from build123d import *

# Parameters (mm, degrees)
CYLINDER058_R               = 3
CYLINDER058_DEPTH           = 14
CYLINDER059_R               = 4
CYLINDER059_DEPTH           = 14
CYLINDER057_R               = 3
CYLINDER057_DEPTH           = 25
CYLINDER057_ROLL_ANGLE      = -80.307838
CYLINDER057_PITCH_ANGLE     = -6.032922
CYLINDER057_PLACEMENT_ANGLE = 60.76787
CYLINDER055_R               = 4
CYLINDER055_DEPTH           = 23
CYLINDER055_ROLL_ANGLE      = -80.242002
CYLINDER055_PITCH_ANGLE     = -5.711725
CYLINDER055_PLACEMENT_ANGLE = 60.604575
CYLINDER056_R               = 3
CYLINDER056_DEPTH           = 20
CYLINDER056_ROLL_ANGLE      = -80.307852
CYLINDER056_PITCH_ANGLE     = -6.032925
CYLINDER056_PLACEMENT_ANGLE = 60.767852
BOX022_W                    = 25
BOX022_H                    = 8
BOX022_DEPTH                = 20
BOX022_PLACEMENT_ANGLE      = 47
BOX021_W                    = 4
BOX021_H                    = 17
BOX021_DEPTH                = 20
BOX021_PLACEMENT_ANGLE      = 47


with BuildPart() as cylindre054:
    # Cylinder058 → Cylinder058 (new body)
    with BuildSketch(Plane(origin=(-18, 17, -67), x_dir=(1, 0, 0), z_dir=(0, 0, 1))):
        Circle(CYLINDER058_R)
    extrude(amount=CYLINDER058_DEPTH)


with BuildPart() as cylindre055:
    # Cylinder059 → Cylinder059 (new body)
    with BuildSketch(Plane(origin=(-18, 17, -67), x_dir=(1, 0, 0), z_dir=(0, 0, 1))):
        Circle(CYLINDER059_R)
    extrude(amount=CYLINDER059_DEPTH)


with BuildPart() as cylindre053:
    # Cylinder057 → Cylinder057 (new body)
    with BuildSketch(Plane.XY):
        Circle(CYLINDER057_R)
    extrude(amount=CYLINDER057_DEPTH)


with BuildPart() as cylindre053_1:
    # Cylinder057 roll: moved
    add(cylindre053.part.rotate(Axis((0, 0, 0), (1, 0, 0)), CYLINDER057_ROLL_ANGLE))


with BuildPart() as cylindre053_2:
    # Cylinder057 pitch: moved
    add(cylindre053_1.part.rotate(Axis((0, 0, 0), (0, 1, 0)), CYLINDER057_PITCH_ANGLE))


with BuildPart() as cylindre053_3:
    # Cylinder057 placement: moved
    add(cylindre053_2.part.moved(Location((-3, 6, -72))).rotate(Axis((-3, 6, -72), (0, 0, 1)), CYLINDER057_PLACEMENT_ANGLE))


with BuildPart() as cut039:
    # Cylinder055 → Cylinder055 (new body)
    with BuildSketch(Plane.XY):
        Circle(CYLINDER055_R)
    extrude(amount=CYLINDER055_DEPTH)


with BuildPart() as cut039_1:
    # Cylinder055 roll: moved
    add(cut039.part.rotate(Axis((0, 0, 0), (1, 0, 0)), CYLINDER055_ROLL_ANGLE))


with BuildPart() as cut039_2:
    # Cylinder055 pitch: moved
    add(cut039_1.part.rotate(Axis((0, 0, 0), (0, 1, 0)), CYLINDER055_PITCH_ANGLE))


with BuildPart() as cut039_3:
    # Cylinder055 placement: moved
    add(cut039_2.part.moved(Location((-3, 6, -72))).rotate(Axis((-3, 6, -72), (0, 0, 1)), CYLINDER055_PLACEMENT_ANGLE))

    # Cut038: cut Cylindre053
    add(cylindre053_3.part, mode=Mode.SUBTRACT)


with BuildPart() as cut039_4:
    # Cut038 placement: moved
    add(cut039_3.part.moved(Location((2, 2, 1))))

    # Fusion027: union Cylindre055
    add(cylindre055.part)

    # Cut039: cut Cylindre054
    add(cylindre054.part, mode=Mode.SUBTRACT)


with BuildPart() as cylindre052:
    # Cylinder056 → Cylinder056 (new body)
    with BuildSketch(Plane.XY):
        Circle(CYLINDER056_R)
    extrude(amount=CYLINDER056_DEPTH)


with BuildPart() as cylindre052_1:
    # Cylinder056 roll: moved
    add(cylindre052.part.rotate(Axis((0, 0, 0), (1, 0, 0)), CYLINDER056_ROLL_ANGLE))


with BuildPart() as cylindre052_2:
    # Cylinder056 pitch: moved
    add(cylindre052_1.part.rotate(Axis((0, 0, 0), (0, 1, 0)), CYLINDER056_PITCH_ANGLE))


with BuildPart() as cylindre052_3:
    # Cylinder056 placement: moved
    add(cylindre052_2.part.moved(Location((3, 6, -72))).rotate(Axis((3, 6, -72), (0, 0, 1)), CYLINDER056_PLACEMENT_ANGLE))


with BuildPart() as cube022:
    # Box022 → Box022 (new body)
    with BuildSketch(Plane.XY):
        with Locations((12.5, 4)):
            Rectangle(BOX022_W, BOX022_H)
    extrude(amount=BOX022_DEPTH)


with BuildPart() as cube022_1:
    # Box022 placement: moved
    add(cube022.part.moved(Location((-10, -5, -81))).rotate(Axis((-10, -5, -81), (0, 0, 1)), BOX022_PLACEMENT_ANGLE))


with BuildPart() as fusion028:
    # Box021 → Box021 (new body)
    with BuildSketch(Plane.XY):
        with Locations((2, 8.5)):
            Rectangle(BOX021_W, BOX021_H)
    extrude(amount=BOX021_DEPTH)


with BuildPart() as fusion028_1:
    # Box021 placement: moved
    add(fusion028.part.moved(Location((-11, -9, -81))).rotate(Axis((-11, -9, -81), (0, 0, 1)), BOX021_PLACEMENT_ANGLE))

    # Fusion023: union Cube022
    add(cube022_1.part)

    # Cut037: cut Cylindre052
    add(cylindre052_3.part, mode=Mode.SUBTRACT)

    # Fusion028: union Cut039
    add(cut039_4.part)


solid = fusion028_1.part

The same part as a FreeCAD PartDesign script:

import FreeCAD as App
import Part
import Sketcher

V = App.Vector

doc = App.newDocument("Part")
body = doc.addObject("PartDesign::Body", "Body")

sketch1 = body.newObject("Sketcher::SketchObject", "Sketch")
sketch1.AttachmentSupport = (doc.getObject("XY_Plane"), [""])
sketch1.MapMode = "FlatFace"
sketch1.AttachmentOffset = App.Placement(V(0, 0, -67), App.Rotation())
sketch1.addGeometry(Part.Circle(V(-18, 17, 0), V(0, 0, 1), 3), False)
sketch1.addConstraint([
    Sketcher.Constraint("Diameter", 0, 6.0),
    Sketcher.Constraint("DistanceX", 0, 3, -1, 1, 18.0),
    Sketcher.Constraint("DistanceY", -1, 1, 0, 3, 17.0),
])
pad1 = body.newObject("PartDesign::Pad", "Pad")
pad1.Profile = sketch1
pad1.Length = 14
body2 = doc.addObject("PartDesign::Body", "Body001")

sketch2 = body2.newObject("Sketcher::SketchObject", "Sketch001")
sketch2.AttachmentSupport = (doc.getObject("XY_Plane001"), [""])
sketch2.MapMode = "FlatFace"
sketch2.AttachmentOffset = App.Placement(V(0, 0, -67), App.Rotation())
sketch2.addGeometry(Part.Circle(V(-18, 17, 0), V(0, 0, 1), 4), False)
sketch2.addConstraint([
    Sketcher.Constraint("Diameter", 0, 8.0),
    Sketcher.Constraint("DistanceX", 0, 3, -1, 1, 18.0),
    Sketcher.Constraint("DistanceY", -1, 1, 0, 3, 17.0),
])
pad2 = body2.newObject("PartDesign::Pad", "Pad001")
pad2.Profile = sketch2
pad2.Length = 14
body3 = doc.addObject("PartDesign::Body", "Body002")

sketch3 = body3.newObject("Sketcher::SketchObject", "Sketch002")
sketch3.AttachmentSupport = (doc.getObject("XY_Plane002"), [""])
sketch3.MapMode = "FlatFace"
sketch3.addGeometry(Part.Circle(V(0, 0, 0), V(0, 0, 1), 3), False)
sketch3.addConstraint([
    Sketcher.Constraint("Coincident", 0, 3, -1, 1),
    Sketcher.Constraint("Diameter", 0, 6.0),
])
pad3 = body3.newObject("PartDesign::Pad", "Pad002")
pad3.Profile = sketch3
pad3.Length = 25
body4 = doc.addObject("PartDesign::Body", "Body003")
doc.recompute()

body3.Placement = App.Placement(V(0, 0, 0), App.Rotation(V(1, 0, 0), 279.692162))
boolean = body4.newObject("PartDesign::Boolean", "Boolean")
boolean.Type = "Fuse"
boolean.addObjects([body3])
body5 = doc.addObject("PartDesign::Body", "Body004")
doc.recompute()

body4.Placement = App.Placement(V(0, 0, 0), App.Rotation(V(0, 1, 0), 353.967078))
boolean2 = body5.newObject("PartDesign::Boolean", "Boolean001")
boolean2.Type = "Fuse"
boolean2.addObjects([body4])
body6 = doc.addObject("PartDesign::Body", "Body005")
doc.recompute()

body5.Placement = App.Placement(V(-3, 6, -72), App.Rotation(V(0, 0, 1), 60.76787))
boolean3 = body6.newObject("PartDesign::Boolean", "Boolean002")
boolean3.Type = "Fuse"
boolean3.addObjects([body5])
body7 = doc.addObject("PartDesign::Body", "Body006")

sketch4 = body7.newObject("Sketcher::SketchObject", "Sketch003")
sketch4.AttachmentSupport = (doc.getObject("XY_Plane006"), [""])
sketch4.MapMode = "FlatFace"
sketch4.addGeometry(Part.Circle(V(0, 0, 0), V(0, 0, 1), 4), False)
sketch4.addConstraint([
    Sketcher.Constraint("Coincident", 0, 3, -1, 1),
    Sketcher.Constraint("Diameter", 0, 8.0),
])
pad4 = body7.newObject("PartDesign::Pad", "Pad003")
pad4.Profile = sketch4
pad4.Length = 23
body8 = doc.addObject("PartDesign::Body", "Body007")
doc.recompute()

body7.Placement = App.Placement(V(0, 0, 0), App.Rotation(V(1, 0, 0), 279.757998))
boolean4 = body8.newObject("PartDesign::Boolean", "Boolean003")
boolean4.Type = "Fuse"
boolean4.addObjects([body7])
body9 = doc.addObject("PartDesign::Body", "Body008")
doc.recompute()

body8.Placement = App.Placement(V(0, 0, 0), App.Rotation(V(0, 1, 0), 354.288275))
boolean5 = body9.newObject("PartDesign::Boolean", "Boolean004")
boolean5.Type = "Fuse"
boolean5.addObjects([body8])
body10 = doc.addObject("PartDesign::Body", "Body009")
doc.recompute()

body9.Placement = App.Placement(V(-3, 6, -72), App.Rotation(V(0, 0, 1), 60.604575))
boolean6 = body10.newObject("PartDesign::Boolean", "Boolean005")
boolean6.Type = "Fuse"
boolean6.addObjects([body9])
doc.recompute()

boolean7 = body10.newObject("PartDesign::Boolean", "Boolean006")
boolean7.Type = "Cut"
boolean7.addObjects([body6])
body11 = doc.addObject("PartDesign::Body", "Body010")
doc.recompute()

body10.Placement = App.Placement(V(2, 2, 1), App.Rotation(V(0, 0, 1), 0))
boolean8 = body11.newObject("PartDesign::Boolean", "Boolean007")
boolean8.Type = "Fuse"
boolean8.addObjects([body10])
doc.recompute()

boolean9 = body11.newObject("PartDesign::Boolean", "Boolean008")
boolean9.Type = "Fuse"
boolean9.addObjects([body2])
doc.recompute()

boolean10 = body11.newObject("PartDesign::Boolean", "Boolean009")
boolean10.Type = "Cut"
boolean10.addObjects([body])
body12 = doc.addObject("PartDesign::Body", "Body011")

sketch5 = body12.newObject("Sketcher::SketchObject", "Sketch004")
sketch5.AttachmentSupport = (doc.getObject("XY_Plane011"), [""])
sketch5.MapMode = "FlatFace"
sketch5.addGeometry(Part.Circle(V(0, 0, 0), V(0, 0, 1), 3), False)
sketch5.addConstraint([
    Sketcher.Constraint("Coincident", 0, 3, -1, 1),
    Sketcher.Constraint("Diameter", 0, 6.0),
])
pad5 = body12.newObject("PartDesign::Pad", "Pad004")
pad5.Profile = sketch5
pad5.Length = 20
body13 = doc.addObject("PartDesign::Body", "Body012")
doc.recompute()

body12.Placement = App.Placement(V(0, 0, 0), App.Rotation(V(1, 0, 0), 279.692148))
boolean11 = body13.newObject("PartDesign::Boolean", "Boolean010")
boolean11.Type = "Fuse"
boolean11.addObjects([body12])
body14 = doc.addObject("PartDesign::Body", "Body013")
doc.recompute()

body13.Placement = App.Placement(V(0, 0, 0), App.Rotation(V(0, 1, 0), 353.967075))
boolean12 = body14.newObject("PartDesign::Boolean", "Boolean011")
boolean12.Type = "Fuse"
boolean12.addObjects([body13])
body15 = doc.addObject("PartDesign::Body", "Body014")
doc.recompute()

body14.Placement = App.Placement(V(3, 6, -72), App.Rotation(V(0, 0, 1), 60.767852))
boolean13 = body15.newObject("PartDesign::Boolean", "Boolean012")
boolean13.Type = "Fuse"
boolean13.addObjects([body14])
body16 = doc.addObject("PartDesign::Body", "Body015")

sketch6 = body16.newObject("Sketcher::SketchObject", "Sketch005")
sketch6.AttachmentSupport = (doc.getObject("XY_Plane015"), [""])
sketch6.MapMode = "FlatFace"
sketch6.addGeometry([
    Part.LineSegment(V(0, 8, 0), V(0, 0, 0)),
    Part.LineSegment(V(0, 0, 0), V(25, 0, 0)),
    Part.LineSegment(V(25, 0, 0), V(25, 8, 0)),
    Part.LineSegment(V(25, 8, 0), V(0, 8, 0)),
], False)
sketch6.addConstraint([
    Sketcher.Constraint("Coincident", 0, 2, 1, 1),
    Sketcher.Constraint("Coincident", 1, 2, 2, 1),
    Sketcher.Constraint("Coincident", 2, 2, 3, 1),
    Sketcher.Constraint("Coincident", 3, 2, 0, 1),
    Sketcher.Constraint("Vertical", 0),
    Sketcher.Constraint("Horizontal", 1),
    Sketcher.Constraint("Vertical", 2),
    Sketcher.Constraint("Horizontal", 3),
    Sketcher.Constraint("Coincident", 0, 2, -1, 1),
    Sketcher.Constraint("DistanceX", 1, 1, 1, 2, 25.0),
    Sketcher.Constraint("DistanceY", 0, 2, 0, 1, 8.0),
])
pad6 = body16.newObject("PartDesign::Pad", "Pad005")
pad6.Profile = sketch6
pad6.Length = 20
body17 = doc.addObject("PartDesign::Body", "Body016")
doc.recompute()

body16.Placement = App.Placement(V(-10, -5, -81), App.Rotation(V(0, 0, 1), 47))
boolean14 = body17.newObject("PartDesign::Boolean", "Boolean013")
boolean14.Type = "Fuse"
boolean14.addObjects([body16])
body18 = doc.addObject("PartDesign::Body", "Body017")

sketch7 = body18.newObject("Sketcher::SketchObject", "Sketch006")
sketch7.AttachmentSupport = (doc.getObject("XY_Plane017"), [""])
sketch7.MapMode = "FlatFace"
sketch7.addGeometry([
    Part.LineSegment(V(0, 17, 0), V(0, 0, 0)),
    Part.LineSegment(V(0, 0, 0), V(4, 0, 0)),
    Part.LineSegment(V(4, 0, 0), V(4, 17, 0)),
    Part.LineSegment(V(4, 17, 0), V(0, 17, 0)),
], False)
sketch7.addConstraint([
    Sketcher.Constraint("Coincident", 0, 2, 1, 1),
    Sketcher.Constraint("Coincident", 1, 2, 2, 1),
    Sketcher.Constraint("Coincident", 2, 2, 3, 1),
    Sketcher.Constraint("Coincident", 3, 2, 0, 1),
    Sketcher.Constraint("Vertical", 0),
    Sketcher.Constraint("Horizontal", 1),
    Sketcher.Constraint("Vertical", 2),
    Sketcher.Constraint("Horizontal", 3),
    Sketcher.Constraint("Coincident", 0, 2, -1, 1),
    Sketcher.Constraint("DistanceX", 1, 1, 1, 2, 4.0),
    Sketcher.Constraint("DistanceY", 0, 2, 0, 1, 17.0),
])
pad7 = body18.newObject("PartDesign::Pad", "Pad006")
pad7.Profile = sketch7
pad7.Length = 20
body19 = doc.addObject("PartDesign::Body", "Body018")
doc.recompute()

body18.Placement = App.Placement(V(-11, -9, -81), App.Rotation(V(0, 0, 1), 47))
boolean15 = body19.newObject("PartDesign::Boolean", "Boolean014")
boolean15.Type = "Fuse"
boolean15.addObjects([body18])
doc.recompute()

boolean16 = body19.newObject("PartDesign::Boolean", "Boolean015")
boolean16.Type = "Fuse"
boolean16.addObjects([body17])
doc.recompute()

boolean17 = body19.newObject("PartDesign::Boolean", "Boolean016")
boolean17.Type = "Cut"
boolean17.addObjects([body15])
doc.recompute()

boolean18 = body19.newObject("PartDesign::Boolean", "Boolean017")
boolean18.Type = "Fuse"
boolean18.addObjects([body11])

doc.recompute()
